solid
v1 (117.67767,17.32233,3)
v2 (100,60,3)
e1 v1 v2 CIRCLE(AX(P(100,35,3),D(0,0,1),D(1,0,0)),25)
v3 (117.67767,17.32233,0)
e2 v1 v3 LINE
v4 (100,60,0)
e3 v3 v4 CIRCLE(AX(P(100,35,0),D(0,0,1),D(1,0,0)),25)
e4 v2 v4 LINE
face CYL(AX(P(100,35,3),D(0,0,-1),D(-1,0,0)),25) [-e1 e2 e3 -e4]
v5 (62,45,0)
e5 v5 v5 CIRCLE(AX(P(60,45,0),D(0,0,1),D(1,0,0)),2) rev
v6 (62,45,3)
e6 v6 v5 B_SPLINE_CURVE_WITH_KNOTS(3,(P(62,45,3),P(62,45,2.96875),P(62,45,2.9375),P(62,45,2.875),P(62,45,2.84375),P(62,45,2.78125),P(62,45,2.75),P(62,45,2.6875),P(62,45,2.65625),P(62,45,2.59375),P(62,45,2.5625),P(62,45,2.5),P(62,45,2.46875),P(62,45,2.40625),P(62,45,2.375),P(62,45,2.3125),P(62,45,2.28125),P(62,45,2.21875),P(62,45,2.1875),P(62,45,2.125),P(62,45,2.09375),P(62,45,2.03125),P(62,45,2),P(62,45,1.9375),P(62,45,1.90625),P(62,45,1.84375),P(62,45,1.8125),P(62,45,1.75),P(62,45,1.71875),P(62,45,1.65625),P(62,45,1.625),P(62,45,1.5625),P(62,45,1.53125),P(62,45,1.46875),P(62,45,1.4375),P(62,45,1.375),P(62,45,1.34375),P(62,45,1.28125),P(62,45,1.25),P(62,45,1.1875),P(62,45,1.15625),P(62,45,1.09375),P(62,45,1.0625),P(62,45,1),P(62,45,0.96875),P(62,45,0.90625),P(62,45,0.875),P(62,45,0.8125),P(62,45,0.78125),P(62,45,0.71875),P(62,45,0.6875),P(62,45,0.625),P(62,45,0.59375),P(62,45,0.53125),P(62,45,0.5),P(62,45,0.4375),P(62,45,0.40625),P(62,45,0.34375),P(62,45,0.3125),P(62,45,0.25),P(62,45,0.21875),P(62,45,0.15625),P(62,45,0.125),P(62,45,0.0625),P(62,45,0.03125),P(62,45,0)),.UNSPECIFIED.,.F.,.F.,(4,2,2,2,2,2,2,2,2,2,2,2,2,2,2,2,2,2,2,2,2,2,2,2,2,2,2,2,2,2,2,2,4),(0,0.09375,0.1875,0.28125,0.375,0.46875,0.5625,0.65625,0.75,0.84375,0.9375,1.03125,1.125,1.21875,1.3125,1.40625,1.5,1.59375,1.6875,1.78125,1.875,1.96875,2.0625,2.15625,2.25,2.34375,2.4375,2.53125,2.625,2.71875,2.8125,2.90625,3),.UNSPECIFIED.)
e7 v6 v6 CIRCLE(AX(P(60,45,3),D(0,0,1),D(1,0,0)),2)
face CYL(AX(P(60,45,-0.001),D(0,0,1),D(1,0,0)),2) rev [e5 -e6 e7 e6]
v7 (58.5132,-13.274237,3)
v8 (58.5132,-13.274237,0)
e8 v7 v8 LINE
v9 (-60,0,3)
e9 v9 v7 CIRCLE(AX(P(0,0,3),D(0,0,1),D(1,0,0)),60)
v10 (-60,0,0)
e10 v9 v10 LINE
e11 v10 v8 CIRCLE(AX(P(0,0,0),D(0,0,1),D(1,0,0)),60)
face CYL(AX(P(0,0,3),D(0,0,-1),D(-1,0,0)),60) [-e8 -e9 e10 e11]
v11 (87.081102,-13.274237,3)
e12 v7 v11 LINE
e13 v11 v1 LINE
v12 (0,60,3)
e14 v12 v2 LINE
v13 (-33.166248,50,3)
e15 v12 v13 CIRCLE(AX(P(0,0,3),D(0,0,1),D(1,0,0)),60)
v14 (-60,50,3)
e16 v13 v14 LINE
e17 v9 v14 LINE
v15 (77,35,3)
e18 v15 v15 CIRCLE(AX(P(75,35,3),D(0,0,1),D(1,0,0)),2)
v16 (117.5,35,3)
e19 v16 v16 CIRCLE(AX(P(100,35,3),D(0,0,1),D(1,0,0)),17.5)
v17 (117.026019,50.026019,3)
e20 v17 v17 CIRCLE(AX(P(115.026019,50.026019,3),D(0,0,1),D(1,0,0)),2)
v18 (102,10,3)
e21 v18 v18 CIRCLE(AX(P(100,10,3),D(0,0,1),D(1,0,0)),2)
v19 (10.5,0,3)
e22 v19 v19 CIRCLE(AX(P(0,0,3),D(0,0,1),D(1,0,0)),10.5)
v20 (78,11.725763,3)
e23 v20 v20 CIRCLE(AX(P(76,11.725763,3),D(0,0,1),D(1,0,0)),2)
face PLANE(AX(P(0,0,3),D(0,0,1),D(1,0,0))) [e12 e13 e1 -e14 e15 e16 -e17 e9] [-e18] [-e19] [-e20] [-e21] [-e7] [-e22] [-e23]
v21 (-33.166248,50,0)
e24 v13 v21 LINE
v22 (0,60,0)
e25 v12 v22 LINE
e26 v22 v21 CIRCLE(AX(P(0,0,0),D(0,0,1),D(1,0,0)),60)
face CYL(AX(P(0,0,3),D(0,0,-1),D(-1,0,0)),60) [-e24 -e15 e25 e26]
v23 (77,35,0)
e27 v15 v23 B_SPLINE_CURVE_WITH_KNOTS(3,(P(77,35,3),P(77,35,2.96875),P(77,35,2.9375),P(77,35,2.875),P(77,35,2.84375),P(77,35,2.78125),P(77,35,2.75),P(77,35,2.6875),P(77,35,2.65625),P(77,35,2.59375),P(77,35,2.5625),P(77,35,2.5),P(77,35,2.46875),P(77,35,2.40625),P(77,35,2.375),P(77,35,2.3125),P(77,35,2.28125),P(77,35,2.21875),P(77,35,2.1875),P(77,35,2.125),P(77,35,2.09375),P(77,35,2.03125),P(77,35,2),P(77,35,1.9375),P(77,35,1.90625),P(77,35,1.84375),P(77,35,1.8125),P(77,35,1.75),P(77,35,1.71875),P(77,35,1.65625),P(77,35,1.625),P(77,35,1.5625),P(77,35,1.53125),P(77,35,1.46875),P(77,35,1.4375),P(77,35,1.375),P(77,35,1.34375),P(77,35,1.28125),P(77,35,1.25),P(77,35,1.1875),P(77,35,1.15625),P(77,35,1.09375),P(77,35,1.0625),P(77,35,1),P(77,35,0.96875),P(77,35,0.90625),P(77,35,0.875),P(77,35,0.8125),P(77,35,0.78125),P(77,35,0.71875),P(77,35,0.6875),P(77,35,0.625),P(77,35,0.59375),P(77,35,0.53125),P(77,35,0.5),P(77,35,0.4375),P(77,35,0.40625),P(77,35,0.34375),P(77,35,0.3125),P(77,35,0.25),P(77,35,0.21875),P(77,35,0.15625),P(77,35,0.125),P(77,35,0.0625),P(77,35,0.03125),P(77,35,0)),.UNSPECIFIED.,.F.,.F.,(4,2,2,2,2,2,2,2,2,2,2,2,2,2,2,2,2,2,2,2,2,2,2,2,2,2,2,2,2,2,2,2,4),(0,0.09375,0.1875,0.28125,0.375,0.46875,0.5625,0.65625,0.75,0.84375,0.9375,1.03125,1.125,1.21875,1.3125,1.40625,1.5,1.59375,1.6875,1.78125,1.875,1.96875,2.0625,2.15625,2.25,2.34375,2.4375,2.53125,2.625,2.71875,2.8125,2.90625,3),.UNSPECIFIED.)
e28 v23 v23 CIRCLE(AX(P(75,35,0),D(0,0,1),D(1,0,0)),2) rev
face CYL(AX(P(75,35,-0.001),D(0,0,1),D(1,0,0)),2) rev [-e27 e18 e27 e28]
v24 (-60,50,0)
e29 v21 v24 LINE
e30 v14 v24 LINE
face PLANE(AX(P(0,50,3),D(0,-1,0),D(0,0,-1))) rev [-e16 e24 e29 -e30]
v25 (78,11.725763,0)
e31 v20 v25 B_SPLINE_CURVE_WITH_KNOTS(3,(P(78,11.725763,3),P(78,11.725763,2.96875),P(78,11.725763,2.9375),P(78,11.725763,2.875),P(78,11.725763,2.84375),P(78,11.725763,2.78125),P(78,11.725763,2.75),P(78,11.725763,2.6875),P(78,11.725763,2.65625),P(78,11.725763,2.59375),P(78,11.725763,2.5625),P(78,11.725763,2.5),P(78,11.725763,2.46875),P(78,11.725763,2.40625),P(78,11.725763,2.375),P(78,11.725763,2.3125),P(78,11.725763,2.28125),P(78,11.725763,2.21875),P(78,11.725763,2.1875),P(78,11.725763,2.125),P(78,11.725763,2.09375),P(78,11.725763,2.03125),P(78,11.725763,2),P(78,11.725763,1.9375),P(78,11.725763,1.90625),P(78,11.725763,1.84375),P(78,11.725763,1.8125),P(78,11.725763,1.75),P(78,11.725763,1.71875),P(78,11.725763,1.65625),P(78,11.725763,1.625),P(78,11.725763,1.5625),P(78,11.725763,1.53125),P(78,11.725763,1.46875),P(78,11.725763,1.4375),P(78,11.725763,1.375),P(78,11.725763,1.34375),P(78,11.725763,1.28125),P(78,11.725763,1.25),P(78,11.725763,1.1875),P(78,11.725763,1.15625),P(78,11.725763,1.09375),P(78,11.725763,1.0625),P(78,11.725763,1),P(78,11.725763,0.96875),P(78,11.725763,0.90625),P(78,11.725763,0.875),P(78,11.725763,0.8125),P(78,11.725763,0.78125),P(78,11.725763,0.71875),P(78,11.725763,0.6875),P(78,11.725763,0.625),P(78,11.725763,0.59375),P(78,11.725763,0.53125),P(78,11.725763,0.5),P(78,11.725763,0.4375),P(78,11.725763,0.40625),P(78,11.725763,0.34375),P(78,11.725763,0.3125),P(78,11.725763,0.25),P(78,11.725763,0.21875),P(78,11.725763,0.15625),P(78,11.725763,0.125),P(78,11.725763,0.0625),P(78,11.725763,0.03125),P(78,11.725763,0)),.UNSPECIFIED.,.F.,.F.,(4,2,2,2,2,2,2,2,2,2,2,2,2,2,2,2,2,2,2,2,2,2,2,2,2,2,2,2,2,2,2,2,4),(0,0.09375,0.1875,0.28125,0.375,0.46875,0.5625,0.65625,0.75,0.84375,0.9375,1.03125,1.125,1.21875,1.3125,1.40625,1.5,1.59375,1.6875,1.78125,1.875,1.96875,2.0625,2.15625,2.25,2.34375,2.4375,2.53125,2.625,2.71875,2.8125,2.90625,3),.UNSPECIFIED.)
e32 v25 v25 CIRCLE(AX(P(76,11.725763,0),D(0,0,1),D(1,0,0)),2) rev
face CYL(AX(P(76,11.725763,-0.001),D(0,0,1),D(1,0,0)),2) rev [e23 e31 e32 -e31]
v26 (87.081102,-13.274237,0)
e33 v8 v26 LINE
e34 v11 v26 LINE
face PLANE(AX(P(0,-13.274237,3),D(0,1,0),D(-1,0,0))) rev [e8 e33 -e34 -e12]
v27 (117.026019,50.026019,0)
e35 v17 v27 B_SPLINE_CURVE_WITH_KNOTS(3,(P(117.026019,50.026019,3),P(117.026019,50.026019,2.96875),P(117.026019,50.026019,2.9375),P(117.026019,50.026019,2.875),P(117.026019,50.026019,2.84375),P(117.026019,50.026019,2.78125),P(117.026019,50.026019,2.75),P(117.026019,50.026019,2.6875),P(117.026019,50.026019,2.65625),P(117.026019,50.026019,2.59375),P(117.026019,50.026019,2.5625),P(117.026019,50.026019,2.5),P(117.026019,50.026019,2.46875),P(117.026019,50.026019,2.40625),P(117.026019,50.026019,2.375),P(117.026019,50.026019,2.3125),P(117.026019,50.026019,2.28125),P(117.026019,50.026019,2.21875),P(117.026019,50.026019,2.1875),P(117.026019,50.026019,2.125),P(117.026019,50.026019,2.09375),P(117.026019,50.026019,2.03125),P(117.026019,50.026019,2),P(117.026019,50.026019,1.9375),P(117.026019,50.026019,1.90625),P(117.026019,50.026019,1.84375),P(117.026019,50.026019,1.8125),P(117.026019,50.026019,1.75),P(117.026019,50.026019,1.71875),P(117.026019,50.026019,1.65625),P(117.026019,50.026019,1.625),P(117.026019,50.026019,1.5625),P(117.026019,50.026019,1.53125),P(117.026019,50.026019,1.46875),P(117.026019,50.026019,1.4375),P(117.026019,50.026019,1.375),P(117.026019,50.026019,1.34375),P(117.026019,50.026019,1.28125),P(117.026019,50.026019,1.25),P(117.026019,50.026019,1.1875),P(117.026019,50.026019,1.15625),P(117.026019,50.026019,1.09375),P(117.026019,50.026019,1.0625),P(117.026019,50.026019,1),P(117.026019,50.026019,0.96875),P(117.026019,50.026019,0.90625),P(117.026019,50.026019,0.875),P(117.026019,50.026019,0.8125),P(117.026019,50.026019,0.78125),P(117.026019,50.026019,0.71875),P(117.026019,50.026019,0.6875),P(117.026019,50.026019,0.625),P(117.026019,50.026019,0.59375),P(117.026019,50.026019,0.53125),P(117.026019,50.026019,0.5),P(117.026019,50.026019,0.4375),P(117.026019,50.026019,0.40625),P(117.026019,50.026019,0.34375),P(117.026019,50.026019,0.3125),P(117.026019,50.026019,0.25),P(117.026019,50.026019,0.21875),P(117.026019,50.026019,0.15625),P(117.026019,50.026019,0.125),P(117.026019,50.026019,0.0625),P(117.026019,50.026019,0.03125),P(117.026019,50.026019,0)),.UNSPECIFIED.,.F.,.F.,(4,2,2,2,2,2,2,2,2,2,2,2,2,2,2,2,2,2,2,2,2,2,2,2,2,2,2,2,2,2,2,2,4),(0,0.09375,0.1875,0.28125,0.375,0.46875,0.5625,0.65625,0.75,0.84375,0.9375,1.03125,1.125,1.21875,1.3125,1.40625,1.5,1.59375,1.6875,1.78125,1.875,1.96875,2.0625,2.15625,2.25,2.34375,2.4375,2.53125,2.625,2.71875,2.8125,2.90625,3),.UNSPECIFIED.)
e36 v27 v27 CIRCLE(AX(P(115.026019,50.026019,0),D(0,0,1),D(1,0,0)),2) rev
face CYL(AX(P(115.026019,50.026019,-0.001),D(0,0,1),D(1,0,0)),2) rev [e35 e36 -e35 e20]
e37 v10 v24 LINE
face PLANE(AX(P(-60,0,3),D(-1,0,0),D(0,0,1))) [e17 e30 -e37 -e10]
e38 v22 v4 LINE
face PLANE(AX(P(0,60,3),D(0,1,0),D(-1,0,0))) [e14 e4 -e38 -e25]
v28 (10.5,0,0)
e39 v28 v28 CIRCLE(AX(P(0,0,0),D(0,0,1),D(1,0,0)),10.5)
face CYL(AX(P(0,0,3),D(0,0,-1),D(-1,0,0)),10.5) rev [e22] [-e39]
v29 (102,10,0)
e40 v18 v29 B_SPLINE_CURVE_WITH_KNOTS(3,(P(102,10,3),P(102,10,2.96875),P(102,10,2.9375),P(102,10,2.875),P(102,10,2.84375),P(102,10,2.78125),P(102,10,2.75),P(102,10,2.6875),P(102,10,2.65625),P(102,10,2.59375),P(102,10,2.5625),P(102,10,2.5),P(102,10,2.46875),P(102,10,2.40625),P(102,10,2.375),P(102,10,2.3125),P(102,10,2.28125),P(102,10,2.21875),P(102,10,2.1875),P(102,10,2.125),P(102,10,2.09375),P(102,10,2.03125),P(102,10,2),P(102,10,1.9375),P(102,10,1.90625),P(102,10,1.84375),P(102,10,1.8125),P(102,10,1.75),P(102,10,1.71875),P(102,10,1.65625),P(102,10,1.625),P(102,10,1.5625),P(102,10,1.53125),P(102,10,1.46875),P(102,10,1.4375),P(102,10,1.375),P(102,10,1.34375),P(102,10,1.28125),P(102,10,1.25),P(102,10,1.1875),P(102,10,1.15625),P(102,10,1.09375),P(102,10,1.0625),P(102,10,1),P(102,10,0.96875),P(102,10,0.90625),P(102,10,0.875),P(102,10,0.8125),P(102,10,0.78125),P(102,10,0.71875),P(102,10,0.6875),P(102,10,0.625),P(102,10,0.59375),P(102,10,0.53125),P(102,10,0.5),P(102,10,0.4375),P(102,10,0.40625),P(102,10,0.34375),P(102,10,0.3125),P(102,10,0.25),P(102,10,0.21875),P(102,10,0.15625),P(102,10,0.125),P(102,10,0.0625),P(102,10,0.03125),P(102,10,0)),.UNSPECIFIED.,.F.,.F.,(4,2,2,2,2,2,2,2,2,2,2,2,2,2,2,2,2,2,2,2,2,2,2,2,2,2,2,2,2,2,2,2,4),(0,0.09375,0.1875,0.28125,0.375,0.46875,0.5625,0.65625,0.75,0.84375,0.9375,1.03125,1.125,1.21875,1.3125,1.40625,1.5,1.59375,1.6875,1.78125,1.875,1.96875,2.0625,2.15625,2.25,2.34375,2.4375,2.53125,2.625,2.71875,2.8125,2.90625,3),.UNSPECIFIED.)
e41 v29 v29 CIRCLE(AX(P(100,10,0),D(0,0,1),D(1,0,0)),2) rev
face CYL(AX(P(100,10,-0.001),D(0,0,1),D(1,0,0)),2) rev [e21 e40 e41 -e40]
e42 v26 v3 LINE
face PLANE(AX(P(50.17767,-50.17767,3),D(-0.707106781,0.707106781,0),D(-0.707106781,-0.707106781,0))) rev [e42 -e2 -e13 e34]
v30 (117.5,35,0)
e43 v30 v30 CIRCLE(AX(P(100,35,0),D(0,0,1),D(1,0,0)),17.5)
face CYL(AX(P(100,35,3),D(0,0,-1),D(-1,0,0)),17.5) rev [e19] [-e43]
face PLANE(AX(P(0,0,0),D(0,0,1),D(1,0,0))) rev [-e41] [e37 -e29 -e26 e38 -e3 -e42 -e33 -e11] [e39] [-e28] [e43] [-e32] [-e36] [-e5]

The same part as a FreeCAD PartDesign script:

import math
import FreeCAD as App
import Part
import Sketcher
from FreeCAD import Vector
Q = App.Units.Quantity

doc = App.newDocument("Part")
params = doc.addObject("Spreadsheet::Sheet", "Params")
for row, (alias, value) in enumerate([
    ("sketch1_diameter", "35 mm"),
    ("sketch1_diameter2", "21 mm"),
    ("sketch1_radius", "60 mm"),
    ("sketch1_radius2", "25 mm"),
    ("sketch1_width", "100 mm"),
    ("pad1_length", "3 mm"),
    ("sketch2_diameter", "4 mm"),
    ("sketch3_diameter", "4 mm"),
    ("sketch4_diameter", "4 mm"),
    ("sketch5_diameter", "4 mm"),
    ("sketch6_diameter", "4 mm"),
], start=1):
    params.set(f"A{row}", alias)
    params.set(f"B{row}", "=" + value)
    params.setAlias(f"B{row}", alias)

body = doc.addObject("PartDesign::Body", "Body")

sketch1 = body.newObject("Sketcher::SketchObject", "Sketch")
sketch1.AttachmentSupport = (doc.getObject("XY_Plane"), [""])
sketch1.MapMode = "FlatFace"
sketch1.addGeometry([
    Part.LineSegment(Vector(-33, 50, 0), Vector(-60, 50, 0)),
    Part.LineSegment(Vector(-60, 50, 0), Vector(-60, 0, 0)),
    Part.ArcOfCircle(Part.Circle(Vector(0, 0, 0), Vector(0, 0, 1), 60), math.radians(180), math.radians(347)),
    Part.LineSegment(Vector(59, -13, 0), Vector(87, -13, 0)),
    Part.LineSegment(Vector(87, -13, 0), Vector(118, 17, 0)),
    Part.ArcOfCircle(Part.Circle(Vector(100, 35, 0), Vector(0, 0, 1), 25), math.radians(-45), math.radians(90)),
    Part.LineSegment(Vector(100, 60, 0), Vector(0, 60, 0)),
    Part.ArcOfCircle(Part.Circle(Vector(0, 0, 0), Vector(0, 0, 1), 60), math.radians(90), math.radians(124)),
    Part.Circle(Vector(100, 35, 0), Vector(0, 0, 1), 18),
    Part.Circle(Vector(0, 0, 0), Vector(0, 0, 1), 10),
], False)
sketch1.addConstraint([
    Sketcher.Constraint("Coincident", 0, 2, 1, 1),
    Sketcher.Constraint("Tangent", 1, 2, 2, 1),
    Sketcher.Constraint("Coincident", 2, 2, 3, 1),
    Sketcher.Constraint("Coincident", 3, 2, 4, 1),
    Sketcher.Constraint("Tangent", 4, 2, 5, 1),
    Sketcher.Constraint("Tangent", 5, 2, 6, 1),
    Sketcher.Constraint("Tangent", 6, 2, 7, 1),
    Sketcher.Constraint("Coincident", 7, 2, 0, 1),
    Sketcher.Constraint("Horizontal", 0),
    Sketcher.Constraint("Vertical", 1),
    Sketcher.Constraint("Horizontal", 3),
    Sketcher.Constraint("Horizontal", 6),
    Sketcher.Constraint("Coincident", 2, 3, -1, 1),
    Sketcher.Constraint("Coincident", 7, 3, -1, 1),
    Sketcher.Constraint("Coincident", 9, 3, -1, 1),
    Sketcher.Constraint("Coincident", 8, 3, 5, 3),
    Sketcher.Constraint("Equal", 2, 7),
    Sketcher.Constraint("Diameter", 8, Q("35 mm")),
    Sketcher.Constraint("Diameter", 9, Q("21 mm")),
    Sketcher.Constraint("Radius", 2, Q("60 mm")),
    Sketcher.Constraint("Radius", 5, Q("25 mm")),
    Sketcher.Constraint("DistanceX", 6, 2, 6, 1, Q("100 mm")),
    Sketcher.Constraint("DistanceY", 1, 2, 1, 1, Q("50 mm")),
    Sketcher.Constraint("Angle", 4, Q("45 deg")),
    Sketcher.Constraint("DistanceX", 3, 1, 3, 2, Q("28.567901 mm")),
])
sketch1.setExpression("Constraints[17]", "Params.sketch1_diameter")
sketch1.setExpression("Constraints[18]", "Params.sketch1_diameter2")
sketch1.setExpression("Constraints[19]", "Params.sketch1_radius")
sketch1.setExpression("Constraints[20]", "Params.sketch1_radius2")
sketch1.setExpression("Constraints[21]", "Params.sketch1_width")
pad1 = body.newObject("PartDesign::Pad", "Pad")
pad1.Profile = sketch1
pad1.setExpression("Length", "Params.pad1_length")

sketch2 = body.newObject("Sketcher::SketchObject", "Sketch001")
sketch2.AttachmentSupport = (doc.getObject("XY_Plane"), [""])
sketch2.MapMode = "FlatFace"
sketch2.AttachmentOffset = App.Placement(Vector(0, 0, 3), App.Rotation())
sketch2.addGeometry(Part.Circle(Vector(60, 45, 0), Vector(0, 0, 1), 2), False)
sketch2.addConstraint([
    Sketcher.Constraint("Diameter", 0, Q("4 mm")),
    Sketcher.Constraint("DistanceX", -1, 1, 0, 3, Q("60 mm")),
    Sketcher.Constraint("DistanceY", -1, 1, 0, 3, Q("45 mm")),
])
sketch2.setExpression("Constraints[0]", "Params.sketch2_diameter")
pocket1 = body.newObject("PartDesign::Pocket", "Pocket")
pocket1.Profile = sketch2
pocket1.Type = "UpToFirst"

sketch3 = body.newObject("Sketcher::SketchObject", "Sketch002")
sketch3.AttachmentSupport = (doc.getObject("XY_Plane"), [""])
sketch3.MapMode = "FlatFace"
sketch3.AttachmentOffset = App.Placement(Vector(0, 0, 3), App.Rotation())
sketch3.addGeometry(Part.Circle(Vector(76, 11.7, 0), Vector(0, 0, 1), 2), False)
sketch3.addConstraint([
    Sketcher.Constraint("Diameter", 0, Q("4 mm")),
    Sketcher.Constraint("DistanceX", -1, 1, 0, 3, Q("76 mm")),
    Sketcher.Constraint("DistanceY", -1, 1, 0, 3, Q("11.725763 mm")),
])
sketch3.setExpression("Constraints[0]", "Params.sketch3_diameter")
pocket2 = body.newObject("PartDesign::Pocket", "Pocket001")
pocket2.Profile = sketch3
pocket2.Type = "UpToFirst"

sketch4 = body.newObject("Sketcher::SketchObject", "Sketch003")
sketch4.AttachmentSupport = (doc.getObject("XY_Plane"), [""])
sketch4.MapMode = "FlatFace"
sketch4.AttachmentOffset = App.Placement(Vector(0, 0, 3), App.Rotation())
sketch4.addGeometry(Part.Circle(Vector(100, 10, 0), Vector(0, 0, 1), 2), False)
sketch4.addConstraint([
    Sketcher.Constraint("Diameter", 0, Q("4 mm")),
    Sketcher.Constraint("DistanceX", -1, 1, 0, 3, Q("100 mm")),
    Sketcher.Constraint("DistanceY", -1, 1, 0, 3, Q("10 mm")),
])
sketch4.setExpression("Constraints[0]", "Params.sketch4_diameter")
pocket3 = body.newObject("PartDesign::Pocket", "Pocket002")
pocket3.Profile = sketch4
pocket3.Type = "UpToFirst"

sketch5 = body.newObject("Sketcher::SketchObject", "Sketch004")
sketch5.AttachmentSupport = (doc.getObject("XY_Plane"), [""])
sketch5.MapMode = "FlatFace"
sketch5.AttachmentOffset = App.Placement(Vector(0, 0, 3), App.Rotation())
sketch5.addGeometry(Part.Circle(Vector(75, 35, 0), Vector(0, 0, 1), 2), False)
sketch5.addConstraint([
    Sketcher.Constraint("Diameter", 0, Q("4 mm")),
    Sketcher.Constraint("DistanceX", -1, 1, 0, 3, Q("75 mm")),
    Sketcher.Constraint("DistanceY", -1, 1, 0, 3, Q("35 mm")),
])
sketch5.setExpression("Constraints[0]", "Params.sketch5_diameter")
pocket4 = body.newObject("PartDesign::Pocket", "Pocket003")
pocket4.Profile = sketch5
pocket4.Type = "UpToFirst"

sketch6 = body.newObject("Sketcher::SketchObject", "Sketch005")
sketch6.AttachmentSupport = (doc.getObject("XY_Plane"), [""])
sketch6.MapMode = "FlatFace"
sketch6.AttachmentOffset = App.Placement(Vector(0, 0, 3), App.Rotation())
sketch6.addGeometry(Part.Circle(Vector(115, 50, 0), Vector(0, 0, 1), 2), False)
sketch6.addConstraint([
    Sketcher.Constraint("Diameter", 0, Q("4 mm")),
    Sketcher.Constraint("DistanceX", -1, 1, 0, 3, Q("115.026019 mm")),
    Sketcher.Constraint("DistanceY", -1, 1, 0, 3, Q("50.026019 mm")),
])
sketch6.setExpression("Constraints[0]", "Params.sketch6_diameter")
pocket5 = body.newObject("PartDesign::Pocket", "Pocket004")
pocket5.Profile = sketch6
pocket5.Type = "UpToFirst"

doc.recompute()
